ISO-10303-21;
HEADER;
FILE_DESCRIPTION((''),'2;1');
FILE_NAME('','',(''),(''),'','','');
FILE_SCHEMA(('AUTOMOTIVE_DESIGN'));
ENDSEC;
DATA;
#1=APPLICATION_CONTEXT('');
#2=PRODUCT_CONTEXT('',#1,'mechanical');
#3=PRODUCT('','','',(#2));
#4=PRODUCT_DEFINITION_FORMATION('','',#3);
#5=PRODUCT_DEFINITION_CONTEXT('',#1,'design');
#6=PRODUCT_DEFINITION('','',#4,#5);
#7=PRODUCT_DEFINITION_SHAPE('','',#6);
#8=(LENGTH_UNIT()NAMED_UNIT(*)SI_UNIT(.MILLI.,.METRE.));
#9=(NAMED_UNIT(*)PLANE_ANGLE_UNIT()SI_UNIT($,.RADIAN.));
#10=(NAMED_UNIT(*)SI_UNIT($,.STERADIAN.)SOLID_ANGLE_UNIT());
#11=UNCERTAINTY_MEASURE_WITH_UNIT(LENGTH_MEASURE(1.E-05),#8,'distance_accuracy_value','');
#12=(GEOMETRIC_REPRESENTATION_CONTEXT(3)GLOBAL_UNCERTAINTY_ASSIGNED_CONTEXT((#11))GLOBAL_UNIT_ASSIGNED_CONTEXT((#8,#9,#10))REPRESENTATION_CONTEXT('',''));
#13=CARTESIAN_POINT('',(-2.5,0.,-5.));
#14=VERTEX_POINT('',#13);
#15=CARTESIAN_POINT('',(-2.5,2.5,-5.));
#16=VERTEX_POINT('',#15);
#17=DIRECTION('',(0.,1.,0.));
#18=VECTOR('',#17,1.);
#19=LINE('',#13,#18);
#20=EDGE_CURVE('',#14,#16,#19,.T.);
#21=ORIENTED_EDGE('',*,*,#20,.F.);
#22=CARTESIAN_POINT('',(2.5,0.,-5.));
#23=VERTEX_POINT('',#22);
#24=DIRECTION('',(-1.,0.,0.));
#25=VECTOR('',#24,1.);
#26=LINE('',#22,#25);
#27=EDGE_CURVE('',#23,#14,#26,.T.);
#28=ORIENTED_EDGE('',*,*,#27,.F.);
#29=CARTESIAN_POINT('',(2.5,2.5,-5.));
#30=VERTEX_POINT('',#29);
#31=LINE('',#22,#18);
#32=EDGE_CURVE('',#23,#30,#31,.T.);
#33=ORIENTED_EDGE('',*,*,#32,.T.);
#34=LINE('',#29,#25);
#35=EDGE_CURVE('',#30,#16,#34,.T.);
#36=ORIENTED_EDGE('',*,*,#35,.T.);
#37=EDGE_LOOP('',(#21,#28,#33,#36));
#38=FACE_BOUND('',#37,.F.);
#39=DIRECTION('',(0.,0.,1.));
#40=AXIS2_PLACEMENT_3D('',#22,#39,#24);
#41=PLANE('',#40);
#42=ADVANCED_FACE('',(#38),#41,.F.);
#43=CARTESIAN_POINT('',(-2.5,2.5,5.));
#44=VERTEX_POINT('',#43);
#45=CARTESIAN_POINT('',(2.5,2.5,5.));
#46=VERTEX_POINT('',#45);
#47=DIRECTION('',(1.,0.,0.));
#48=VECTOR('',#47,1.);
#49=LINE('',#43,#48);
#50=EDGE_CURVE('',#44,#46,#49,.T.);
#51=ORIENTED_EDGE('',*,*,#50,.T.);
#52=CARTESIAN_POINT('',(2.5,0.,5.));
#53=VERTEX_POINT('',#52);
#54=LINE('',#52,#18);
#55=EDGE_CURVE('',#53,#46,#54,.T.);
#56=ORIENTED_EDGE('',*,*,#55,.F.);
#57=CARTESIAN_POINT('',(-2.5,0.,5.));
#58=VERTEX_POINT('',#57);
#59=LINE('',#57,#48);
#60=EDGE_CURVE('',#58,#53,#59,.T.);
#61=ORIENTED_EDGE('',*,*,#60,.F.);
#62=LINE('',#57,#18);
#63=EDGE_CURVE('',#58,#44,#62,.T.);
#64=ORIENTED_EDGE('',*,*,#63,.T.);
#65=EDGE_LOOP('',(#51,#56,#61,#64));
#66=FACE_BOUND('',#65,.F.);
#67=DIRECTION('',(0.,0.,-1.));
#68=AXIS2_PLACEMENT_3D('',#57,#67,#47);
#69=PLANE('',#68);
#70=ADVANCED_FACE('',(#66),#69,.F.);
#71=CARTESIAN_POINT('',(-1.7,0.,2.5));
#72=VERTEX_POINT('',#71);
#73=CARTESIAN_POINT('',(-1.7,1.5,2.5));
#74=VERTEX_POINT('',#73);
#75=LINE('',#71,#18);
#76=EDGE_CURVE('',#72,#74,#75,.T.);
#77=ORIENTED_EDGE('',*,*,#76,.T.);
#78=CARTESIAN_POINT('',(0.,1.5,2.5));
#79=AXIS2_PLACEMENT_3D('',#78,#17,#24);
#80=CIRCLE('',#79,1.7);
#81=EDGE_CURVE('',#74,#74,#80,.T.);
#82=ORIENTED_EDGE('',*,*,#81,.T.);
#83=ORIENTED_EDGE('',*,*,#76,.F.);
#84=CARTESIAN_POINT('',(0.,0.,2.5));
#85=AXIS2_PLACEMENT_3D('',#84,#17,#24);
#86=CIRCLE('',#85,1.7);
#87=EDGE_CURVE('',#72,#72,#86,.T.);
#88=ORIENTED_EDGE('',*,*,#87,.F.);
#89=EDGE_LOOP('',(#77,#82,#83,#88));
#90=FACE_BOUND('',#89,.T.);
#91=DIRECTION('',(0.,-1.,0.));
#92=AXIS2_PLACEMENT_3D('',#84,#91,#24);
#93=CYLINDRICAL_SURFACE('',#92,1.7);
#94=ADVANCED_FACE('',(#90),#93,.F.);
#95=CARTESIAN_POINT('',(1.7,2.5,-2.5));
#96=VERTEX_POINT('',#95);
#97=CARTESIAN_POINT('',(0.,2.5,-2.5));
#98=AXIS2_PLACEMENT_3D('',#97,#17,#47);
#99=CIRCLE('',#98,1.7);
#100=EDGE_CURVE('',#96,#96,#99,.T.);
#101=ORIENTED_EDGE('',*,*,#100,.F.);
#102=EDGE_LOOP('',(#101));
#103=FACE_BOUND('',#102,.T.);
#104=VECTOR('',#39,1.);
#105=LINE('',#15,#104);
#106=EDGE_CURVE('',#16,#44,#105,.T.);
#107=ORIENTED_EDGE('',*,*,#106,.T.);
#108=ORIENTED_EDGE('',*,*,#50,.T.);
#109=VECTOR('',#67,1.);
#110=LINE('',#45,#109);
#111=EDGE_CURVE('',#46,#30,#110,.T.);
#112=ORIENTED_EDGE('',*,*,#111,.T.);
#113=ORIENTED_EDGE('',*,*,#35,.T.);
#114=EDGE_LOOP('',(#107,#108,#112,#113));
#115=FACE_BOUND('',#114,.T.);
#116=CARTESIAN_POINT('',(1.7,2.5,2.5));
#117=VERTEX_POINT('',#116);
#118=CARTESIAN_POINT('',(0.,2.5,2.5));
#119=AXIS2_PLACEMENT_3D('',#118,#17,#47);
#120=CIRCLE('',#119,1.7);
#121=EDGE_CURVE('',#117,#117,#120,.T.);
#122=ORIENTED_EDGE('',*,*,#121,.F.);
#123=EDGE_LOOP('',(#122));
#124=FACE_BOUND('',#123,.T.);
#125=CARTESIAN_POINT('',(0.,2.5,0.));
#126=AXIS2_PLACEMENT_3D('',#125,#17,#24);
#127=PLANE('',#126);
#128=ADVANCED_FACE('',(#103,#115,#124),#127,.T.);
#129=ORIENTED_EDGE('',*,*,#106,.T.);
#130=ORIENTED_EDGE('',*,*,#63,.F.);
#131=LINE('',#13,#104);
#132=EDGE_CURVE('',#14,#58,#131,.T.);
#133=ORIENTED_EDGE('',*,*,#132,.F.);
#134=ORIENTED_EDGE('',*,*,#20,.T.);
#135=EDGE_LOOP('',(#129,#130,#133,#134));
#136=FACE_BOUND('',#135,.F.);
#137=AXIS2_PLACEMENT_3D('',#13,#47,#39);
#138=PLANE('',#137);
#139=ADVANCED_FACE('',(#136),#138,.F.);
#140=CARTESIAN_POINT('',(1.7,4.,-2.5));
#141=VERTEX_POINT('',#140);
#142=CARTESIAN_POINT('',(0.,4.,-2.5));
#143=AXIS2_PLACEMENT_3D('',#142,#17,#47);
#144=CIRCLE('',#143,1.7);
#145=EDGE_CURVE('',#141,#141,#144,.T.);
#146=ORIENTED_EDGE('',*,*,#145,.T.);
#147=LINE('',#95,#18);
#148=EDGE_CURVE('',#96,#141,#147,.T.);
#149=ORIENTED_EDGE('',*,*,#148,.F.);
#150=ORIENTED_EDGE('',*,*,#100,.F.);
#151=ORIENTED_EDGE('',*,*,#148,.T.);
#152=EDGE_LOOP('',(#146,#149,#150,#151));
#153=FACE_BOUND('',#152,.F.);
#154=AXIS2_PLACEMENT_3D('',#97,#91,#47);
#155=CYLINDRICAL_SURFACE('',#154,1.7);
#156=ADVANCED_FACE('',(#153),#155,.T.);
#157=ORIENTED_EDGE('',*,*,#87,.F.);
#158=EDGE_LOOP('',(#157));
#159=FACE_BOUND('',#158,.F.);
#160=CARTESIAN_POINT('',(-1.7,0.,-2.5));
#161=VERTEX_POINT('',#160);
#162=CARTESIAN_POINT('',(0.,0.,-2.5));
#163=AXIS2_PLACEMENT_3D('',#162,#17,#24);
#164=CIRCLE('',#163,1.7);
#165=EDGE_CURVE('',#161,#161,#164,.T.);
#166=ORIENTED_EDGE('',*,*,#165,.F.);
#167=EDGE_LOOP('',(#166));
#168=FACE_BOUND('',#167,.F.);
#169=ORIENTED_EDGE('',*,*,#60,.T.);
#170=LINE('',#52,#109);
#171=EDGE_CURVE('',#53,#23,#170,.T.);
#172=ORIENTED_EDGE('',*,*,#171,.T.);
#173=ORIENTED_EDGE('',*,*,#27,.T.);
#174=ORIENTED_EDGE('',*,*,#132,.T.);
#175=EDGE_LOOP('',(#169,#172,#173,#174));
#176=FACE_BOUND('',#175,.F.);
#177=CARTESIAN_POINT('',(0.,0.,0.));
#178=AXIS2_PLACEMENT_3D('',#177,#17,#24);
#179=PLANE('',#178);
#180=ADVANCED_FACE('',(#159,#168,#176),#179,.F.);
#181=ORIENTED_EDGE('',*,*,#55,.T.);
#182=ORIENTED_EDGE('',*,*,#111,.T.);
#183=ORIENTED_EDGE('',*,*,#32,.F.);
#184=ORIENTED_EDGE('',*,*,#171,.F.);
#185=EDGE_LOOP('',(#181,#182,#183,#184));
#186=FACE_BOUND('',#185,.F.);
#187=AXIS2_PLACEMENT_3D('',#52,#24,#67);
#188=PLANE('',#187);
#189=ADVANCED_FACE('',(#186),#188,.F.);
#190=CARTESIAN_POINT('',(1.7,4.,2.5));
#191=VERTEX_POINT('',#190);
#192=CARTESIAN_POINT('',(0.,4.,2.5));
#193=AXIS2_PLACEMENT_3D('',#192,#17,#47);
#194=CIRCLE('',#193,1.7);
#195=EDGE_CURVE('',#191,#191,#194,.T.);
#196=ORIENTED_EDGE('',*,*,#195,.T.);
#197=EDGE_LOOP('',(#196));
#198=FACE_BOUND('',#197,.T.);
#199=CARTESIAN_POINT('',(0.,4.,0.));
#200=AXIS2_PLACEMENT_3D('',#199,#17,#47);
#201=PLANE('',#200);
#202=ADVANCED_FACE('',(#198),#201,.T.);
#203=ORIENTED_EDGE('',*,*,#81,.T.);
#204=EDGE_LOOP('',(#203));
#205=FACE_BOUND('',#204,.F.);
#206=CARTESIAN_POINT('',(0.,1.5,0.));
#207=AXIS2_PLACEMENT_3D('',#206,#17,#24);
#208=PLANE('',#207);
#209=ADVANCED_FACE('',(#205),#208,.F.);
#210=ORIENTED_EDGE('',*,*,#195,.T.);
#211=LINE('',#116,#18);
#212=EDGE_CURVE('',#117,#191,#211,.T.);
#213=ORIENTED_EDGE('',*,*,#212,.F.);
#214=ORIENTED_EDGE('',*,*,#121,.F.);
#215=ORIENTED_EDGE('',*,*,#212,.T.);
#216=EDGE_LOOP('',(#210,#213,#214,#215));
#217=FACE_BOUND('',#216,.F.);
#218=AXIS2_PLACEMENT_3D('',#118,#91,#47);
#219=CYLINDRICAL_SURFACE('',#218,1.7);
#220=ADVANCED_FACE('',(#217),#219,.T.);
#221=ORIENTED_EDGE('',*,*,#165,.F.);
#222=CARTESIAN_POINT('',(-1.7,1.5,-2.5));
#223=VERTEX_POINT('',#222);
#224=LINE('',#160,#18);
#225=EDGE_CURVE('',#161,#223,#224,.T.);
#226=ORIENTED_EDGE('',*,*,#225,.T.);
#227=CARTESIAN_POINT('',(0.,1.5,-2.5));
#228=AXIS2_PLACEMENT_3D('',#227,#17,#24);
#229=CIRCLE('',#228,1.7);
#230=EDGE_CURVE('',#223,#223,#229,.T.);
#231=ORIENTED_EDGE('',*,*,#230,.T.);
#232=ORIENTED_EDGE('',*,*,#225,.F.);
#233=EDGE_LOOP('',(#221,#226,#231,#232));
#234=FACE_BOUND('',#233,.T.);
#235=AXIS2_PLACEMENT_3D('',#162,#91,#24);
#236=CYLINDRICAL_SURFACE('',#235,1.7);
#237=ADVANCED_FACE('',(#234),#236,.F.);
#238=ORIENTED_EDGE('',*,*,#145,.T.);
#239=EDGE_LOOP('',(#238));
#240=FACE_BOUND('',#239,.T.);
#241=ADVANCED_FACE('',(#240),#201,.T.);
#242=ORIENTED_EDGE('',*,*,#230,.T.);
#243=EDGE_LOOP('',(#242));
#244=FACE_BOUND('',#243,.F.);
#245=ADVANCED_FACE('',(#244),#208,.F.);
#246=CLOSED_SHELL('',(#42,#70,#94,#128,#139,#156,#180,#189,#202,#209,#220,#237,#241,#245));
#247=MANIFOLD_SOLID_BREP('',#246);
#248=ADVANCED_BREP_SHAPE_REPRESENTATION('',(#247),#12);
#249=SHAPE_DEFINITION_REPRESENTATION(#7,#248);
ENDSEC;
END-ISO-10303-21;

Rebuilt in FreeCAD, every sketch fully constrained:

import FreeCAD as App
import Part
import Sketcher
Q = App.Units.Quantity

doc = App.newDocument("Part")
body = doc.addObject("PartDesign::Body", "Body")

sketch1 = body.newObject("Sketcher::SketchObject", "Sketch")
sketch1.AttachmentSupport = (doc.getObject("XZ_Plane"), [""])
sketch1.MapMode = "FlatFace"
sketch1.addGeometry([
    Part.LineSegment(App.Vector(-2.5, -5, 0), App.Vector(-2.5, 5, 0)),
    Part.LineSegment(App.Vector(-2.5, 5, 0), App.Vector(2.5, 5, 0)),
    Part.LineSegment(App.Vector(2.5, 5, 0), App.Vector(2.5, -5, 0)),
    Part.LineSegment(App.Vector(2.5, -5, 0), App.Vector(-2.5, -5, 0)),
], False)
sketch1.addConstraint([
    Sketcher.Constraint("Coincident", 0, 2, 1, 1),
    Sketcher.Constraint("Coincident", 1, 2, 2, 1),
    Sketcher.Constraint("Coincident", 2, 2, 3, 1),
    Sketcher.Constraint("Coincident", 3, 2, 0, 1),
    Sketcher.Constraint("Vertical", 0),
    Sketcher.Constraint("Horizontal", 1),
    Sketcher.Constraint("Vertical", 2),
    Sketcher.Constraint("Horizontal", 3),
    Sketcher.Constraint("Symmetric", 0, 2, 2, 2, -1, 1),
    Sketcher.Constraint("DistanceX", 1, 1, 1, 2, Q("5 mm")),
    Sketcher.Constraint("DistanceY", 0, 1, 0, 2, Q("10 mm")),
])
pad1 = body.newObject("PartDesign::Pad", "Pad")
pad1.Profile = sketch1
pad1.Length = 2.5
pad1.Reversed = True

sketch2 = body.newObject("Sketcher::SketchObject", "Sketch001")
sketch2.AttachmentSupport = (doc.getObject("XZ_Plane"), [""])
sketch2.MapMode = "FlatFace"
sketch2.addGeometry([
    Part.Circle(App.Vector(0, 2.5, 0), App.Vector(0, 0, 1), 1.7),
    Part.Circle(App.Vector(0, -2.5, 0), App.Vector(0, 0, 1), 1.7),
], False)
sketch2.addConstraint([
    Sketcher.Constraint("Equal", 0, 1),
    Sketcher.Constraint("Symmetric", 0, 3, 1, 3, -1, 1),
    Sketcher.Constraint("PointOnObject", 0, 3, -2),
    Sketcher.Constraint("Diameter", 0, Q("3.4 mm")),
    Sketcher.Constraint("DistanceY", 1, 3, 0, 3, Q("5 mm")),
])
pocket1 = body.newObject("PartDesign::Pocket", "Pocket")
pocket1.Profile = sketch2
pocket1.Length = 1.5

sketch3 = body.newObject("Sketcher::SketchObject", "Sketch002")
sketch3.AttachmentSupport = (doc.getObject("XZ_Plane"), [""])
sketch3.MapMode = "FlatFace"
sketch3.AttachmentOffset = App.Placement(App.Vector(0, 0, -2.5), App.Rotation())
sketch3.addGeometry([
    Part.Circle(App.Vector(0, 2.5, 0), App.Vector(0, 0, 1), 1.7),
    Part.Circle(App.Vector(0, -2.5, 0), App.Vector(0, 0, 1), 1.7),
], False)
sketch3.addConstraint([
    Sketcher.Constraint("Equal", 0, 1),
    Sketcher.Constraint("Symmetric", 0, 3, 1, 3, -1, 1),
    Sketcher.Constraint("PointOnObject", 0, 3, -2),
    Sketcher.Constraint("Diameter", 0, Q("3.4 mm")),
    Sketcher.Constraint("DistanceY", 1, 3, 0, 3, Q("5 mm")),
])
pad2 = body.newObject("PartDesign::Pad", "Pad001")
pad2.Profile = sketch3
pad2.Length = 1.5
pad2.Reversed = True

doc.recompute()
